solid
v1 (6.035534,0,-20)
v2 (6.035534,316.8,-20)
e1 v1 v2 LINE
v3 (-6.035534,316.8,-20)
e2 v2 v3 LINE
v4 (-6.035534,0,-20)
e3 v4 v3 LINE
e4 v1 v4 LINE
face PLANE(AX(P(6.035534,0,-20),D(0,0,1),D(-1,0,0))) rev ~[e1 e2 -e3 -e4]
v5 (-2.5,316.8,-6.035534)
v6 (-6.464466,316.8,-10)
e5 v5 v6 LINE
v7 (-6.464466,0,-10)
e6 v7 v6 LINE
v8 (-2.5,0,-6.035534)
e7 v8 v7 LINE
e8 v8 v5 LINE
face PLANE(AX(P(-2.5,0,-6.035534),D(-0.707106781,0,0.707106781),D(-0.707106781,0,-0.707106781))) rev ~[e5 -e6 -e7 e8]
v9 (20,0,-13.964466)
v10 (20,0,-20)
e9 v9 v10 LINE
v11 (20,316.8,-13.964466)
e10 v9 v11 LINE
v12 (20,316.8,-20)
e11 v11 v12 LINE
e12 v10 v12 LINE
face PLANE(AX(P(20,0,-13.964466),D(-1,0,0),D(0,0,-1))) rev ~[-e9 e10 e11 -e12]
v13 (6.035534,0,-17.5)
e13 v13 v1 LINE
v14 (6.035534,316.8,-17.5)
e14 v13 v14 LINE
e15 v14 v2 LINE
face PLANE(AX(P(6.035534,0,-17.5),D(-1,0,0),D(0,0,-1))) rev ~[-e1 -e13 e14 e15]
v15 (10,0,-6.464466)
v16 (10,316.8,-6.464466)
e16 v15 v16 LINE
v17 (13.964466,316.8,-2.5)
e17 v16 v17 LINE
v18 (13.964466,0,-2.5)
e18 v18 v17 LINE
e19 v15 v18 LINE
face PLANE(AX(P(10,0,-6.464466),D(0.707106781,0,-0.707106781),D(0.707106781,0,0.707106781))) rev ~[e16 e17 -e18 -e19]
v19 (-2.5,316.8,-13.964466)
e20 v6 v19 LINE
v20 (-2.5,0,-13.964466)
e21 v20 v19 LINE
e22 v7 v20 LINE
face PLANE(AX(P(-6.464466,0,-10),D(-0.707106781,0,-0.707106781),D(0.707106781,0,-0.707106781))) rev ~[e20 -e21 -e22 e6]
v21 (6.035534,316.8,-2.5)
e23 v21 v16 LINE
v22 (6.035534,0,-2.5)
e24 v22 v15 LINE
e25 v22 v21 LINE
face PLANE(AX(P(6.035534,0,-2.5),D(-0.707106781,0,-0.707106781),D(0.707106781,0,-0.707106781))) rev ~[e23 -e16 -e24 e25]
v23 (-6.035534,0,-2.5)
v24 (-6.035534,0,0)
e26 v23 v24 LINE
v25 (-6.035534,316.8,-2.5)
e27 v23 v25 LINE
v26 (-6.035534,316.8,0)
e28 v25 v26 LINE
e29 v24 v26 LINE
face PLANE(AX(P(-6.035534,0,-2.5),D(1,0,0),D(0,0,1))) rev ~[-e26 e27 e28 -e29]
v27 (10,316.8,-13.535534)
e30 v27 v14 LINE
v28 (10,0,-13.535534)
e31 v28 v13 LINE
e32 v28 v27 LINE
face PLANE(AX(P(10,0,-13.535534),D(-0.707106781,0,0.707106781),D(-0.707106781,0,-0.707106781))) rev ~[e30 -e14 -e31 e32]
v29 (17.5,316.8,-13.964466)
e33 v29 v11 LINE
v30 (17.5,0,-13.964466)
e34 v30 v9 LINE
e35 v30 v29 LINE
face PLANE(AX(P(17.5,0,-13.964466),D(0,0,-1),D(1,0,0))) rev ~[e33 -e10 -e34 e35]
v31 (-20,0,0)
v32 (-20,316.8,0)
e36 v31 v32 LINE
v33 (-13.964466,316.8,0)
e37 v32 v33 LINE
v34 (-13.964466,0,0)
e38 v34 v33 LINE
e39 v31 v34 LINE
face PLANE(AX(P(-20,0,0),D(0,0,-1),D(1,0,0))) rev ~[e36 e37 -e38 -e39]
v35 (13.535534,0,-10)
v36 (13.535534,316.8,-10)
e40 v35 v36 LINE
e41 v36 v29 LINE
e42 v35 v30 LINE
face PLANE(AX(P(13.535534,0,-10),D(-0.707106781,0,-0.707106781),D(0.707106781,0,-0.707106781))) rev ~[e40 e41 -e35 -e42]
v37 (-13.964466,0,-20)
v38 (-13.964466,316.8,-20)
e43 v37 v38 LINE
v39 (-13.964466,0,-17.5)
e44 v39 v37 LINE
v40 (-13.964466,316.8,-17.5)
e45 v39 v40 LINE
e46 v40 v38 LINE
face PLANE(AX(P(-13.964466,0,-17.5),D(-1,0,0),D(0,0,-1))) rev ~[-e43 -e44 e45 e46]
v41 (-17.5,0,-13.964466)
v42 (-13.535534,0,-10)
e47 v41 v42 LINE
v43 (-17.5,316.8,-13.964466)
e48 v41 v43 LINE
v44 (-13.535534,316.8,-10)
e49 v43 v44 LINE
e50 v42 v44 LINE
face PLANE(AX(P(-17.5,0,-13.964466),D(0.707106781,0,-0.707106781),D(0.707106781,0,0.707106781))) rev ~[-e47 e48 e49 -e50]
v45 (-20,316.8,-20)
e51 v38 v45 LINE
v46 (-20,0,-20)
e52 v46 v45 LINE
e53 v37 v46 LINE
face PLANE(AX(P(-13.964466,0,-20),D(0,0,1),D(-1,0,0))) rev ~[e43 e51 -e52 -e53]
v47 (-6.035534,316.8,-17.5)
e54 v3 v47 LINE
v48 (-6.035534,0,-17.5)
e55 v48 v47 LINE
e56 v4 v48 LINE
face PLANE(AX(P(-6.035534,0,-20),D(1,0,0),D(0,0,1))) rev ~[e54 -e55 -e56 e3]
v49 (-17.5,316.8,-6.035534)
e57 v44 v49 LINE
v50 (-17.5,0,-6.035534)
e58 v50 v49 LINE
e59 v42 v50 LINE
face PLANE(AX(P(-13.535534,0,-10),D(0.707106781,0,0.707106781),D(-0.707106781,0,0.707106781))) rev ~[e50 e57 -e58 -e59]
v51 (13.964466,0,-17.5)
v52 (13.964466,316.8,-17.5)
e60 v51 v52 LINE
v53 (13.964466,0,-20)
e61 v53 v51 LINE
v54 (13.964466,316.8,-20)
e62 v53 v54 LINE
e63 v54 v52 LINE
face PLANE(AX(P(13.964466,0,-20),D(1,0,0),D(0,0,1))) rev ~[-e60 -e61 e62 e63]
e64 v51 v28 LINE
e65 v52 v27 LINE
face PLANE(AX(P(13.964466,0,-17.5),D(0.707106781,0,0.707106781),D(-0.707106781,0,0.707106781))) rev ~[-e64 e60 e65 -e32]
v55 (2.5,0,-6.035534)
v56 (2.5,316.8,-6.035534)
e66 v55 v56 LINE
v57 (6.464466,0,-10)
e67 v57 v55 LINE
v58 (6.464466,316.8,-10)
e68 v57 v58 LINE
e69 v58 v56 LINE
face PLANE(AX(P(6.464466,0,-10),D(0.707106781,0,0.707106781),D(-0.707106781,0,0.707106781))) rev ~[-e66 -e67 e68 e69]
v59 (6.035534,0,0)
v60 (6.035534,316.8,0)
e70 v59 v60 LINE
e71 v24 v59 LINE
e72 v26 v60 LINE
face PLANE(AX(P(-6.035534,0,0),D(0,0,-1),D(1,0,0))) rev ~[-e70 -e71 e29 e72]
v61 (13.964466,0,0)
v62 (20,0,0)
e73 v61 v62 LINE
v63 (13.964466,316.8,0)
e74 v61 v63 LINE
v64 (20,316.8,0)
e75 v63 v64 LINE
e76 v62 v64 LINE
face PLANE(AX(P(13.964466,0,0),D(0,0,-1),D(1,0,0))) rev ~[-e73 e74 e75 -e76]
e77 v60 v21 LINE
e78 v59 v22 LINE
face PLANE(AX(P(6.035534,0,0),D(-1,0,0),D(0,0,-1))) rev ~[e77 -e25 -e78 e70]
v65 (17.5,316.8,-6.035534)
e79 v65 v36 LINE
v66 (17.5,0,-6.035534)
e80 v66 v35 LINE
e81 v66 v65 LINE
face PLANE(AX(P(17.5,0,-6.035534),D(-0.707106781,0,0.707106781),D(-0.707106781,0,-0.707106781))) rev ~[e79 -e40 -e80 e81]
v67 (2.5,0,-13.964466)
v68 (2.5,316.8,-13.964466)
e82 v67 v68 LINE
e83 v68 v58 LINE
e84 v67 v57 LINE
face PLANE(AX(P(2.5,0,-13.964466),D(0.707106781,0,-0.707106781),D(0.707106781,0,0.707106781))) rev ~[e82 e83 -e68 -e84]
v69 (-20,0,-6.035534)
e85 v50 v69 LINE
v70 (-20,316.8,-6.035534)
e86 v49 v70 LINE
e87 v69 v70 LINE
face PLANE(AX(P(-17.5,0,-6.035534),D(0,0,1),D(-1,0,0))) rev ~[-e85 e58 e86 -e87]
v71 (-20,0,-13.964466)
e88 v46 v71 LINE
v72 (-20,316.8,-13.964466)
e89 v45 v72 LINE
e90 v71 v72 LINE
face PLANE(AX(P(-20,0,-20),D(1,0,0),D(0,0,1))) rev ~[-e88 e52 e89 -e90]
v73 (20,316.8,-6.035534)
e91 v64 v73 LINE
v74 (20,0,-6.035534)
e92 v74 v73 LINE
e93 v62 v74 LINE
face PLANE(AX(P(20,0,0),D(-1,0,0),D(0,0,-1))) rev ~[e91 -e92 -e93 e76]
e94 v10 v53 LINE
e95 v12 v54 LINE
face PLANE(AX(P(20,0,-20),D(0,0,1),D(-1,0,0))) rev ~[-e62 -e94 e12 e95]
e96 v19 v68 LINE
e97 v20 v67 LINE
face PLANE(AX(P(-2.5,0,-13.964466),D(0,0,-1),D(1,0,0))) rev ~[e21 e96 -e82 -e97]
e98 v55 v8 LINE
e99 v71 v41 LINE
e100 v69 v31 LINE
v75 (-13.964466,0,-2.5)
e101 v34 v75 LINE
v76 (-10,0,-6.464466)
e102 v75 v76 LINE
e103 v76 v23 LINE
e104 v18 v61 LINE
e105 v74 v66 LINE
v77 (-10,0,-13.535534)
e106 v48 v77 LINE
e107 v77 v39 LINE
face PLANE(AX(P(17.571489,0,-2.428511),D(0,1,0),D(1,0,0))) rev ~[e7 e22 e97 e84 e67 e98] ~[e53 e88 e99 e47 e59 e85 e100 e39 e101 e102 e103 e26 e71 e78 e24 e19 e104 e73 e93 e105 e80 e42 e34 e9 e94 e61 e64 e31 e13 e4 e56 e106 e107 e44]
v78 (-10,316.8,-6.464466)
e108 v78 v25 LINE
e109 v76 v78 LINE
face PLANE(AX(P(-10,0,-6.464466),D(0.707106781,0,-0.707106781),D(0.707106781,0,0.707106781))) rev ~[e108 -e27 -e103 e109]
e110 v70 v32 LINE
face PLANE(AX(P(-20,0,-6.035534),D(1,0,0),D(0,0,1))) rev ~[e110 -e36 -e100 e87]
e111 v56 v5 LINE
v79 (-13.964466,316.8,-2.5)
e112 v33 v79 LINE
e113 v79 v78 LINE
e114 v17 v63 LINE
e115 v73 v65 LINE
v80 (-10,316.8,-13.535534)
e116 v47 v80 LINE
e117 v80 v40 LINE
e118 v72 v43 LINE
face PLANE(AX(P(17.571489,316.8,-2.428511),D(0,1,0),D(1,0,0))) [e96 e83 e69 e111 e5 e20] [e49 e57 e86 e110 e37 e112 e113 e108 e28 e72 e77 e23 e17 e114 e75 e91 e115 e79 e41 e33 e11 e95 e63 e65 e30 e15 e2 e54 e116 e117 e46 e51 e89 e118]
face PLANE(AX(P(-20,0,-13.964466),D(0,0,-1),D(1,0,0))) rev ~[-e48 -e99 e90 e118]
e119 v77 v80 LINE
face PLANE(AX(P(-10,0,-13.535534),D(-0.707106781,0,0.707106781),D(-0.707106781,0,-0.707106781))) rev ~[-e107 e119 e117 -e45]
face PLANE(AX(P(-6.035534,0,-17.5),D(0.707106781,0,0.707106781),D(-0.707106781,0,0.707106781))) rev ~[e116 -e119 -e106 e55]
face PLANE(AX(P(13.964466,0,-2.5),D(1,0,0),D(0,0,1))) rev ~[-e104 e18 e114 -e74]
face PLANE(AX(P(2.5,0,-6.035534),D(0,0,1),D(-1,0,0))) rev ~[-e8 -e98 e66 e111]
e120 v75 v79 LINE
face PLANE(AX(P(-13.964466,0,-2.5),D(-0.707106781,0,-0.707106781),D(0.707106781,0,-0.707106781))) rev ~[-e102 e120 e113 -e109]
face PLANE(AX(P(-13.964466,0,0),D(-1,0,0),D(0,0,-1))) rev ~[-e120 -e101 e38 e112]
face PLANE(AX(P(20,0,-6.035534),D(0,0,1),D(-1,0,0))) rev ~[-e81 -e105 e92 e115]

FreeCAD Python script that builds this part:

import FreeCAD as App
import Part
import Sketcher

V = App.Vector
Q = App.Units.Quantity

doc = App.newDocument("Part")
body = doc.addObject("PartDesign::Body", "Body")

# Sketch on XZ plane
sketch1 = doc.addObject("Sketcher::SketchObject", "Sketch")
body.addObject(sketch1)
sketch1.AttachmentSupport = (doc.XZ_Plane, [""])
sketch1.MapMode = "FlatFace"
sketch1.addGeometry([
    Part.LineSegment(V(13.964466, -2.5, 0), V(13.964466, 0, 0)),  # 0
    Part.LineSegment(V(13.964466, 0, 0), V(20, 0, 0)),  # 1
    Part.LineSegment(V(20, 0, 0), V(20, -6.035534, 0)),  # 2
    Part.LineSegment(V(20, -6.035534, 0), V(17.5, -6.035534, 0)),  # 3
    Part.LineSegment(V(17.5, -6.035534, 0), V(13.535534, -10, 0)),  # 4
    Part.LineSegment(V(13.535534, -10, 0), V(17.5, -13.964466, 0)),  # 5
    Part.LineSegment(V(17.5, -13.964466, 0), V(20, -13.964466, 0)),  # 6
    Part.LineSegment(V(20, -13.964466, 0), V(20, -20, 0)),  # 7
    Part.LineSegment(V(20, -20, 0), V(13.964466, -20, 0)),  # 8
    Part.LineSegment(V(13.964466, -20, 0), V(13.964466, -17.5, 0)),  # 9
    Part.LineSegment(V(13.964466, -17.5, 0), V(10, -13.535534, 0)),  # 10
    Part.LineSegment(V(10, -13.535534, 0), V(6.035534, -17.5, 0)),  # 11
    Part.LineSegment(V(6.035534, -17.5, 0), V(6.035534, -20, 0)),  # 12
    Part.LineSegment(V(6.035534, -20, 0), V(-6.035534, -20, 0)),  # 13
    Part.LineSegment(V(-6.035534, -20, 0), V(-6.035534, -17.5, 0)),  # 14
    Part.LineSegment(V(-6.035534, -17.5, 0), V(-10, -13.535534, 0)),  # 15
    Part.LineSegment(V(-10, -13.535534, 0), V(-13.964466, -17.5, 0)),  # 16
    Part.LineSegment(V(-13.964466, -17.5, 0), V(-13.964466, -20, 0)),  # 17
    Part.LineSegment(V(-13.964466, -20, 0), V(-20, -20, 0)),  # 18
    Part.LineSegment(V(-20, -20, 0), V(-20, -13.964466, 0)),  # 19
    Part.LineSegment(V(-20, -13.964466, 0), V(-17.5, -13.964466, 0)),  # 20
    Part.LineSegment(V(-17.5, -13.964466, 0), V(-13.535534, -10, 0)),  # 21
    Part.LineSegment(V(-13.535534, -10, 0), V(-17.5, -6.035534, 0)),  # 22
    Part.LineSegment(V(-17.5, -6.035534, 0), V(-20, -6.035534, 0)),  # 23
    Part.LineSegment(V(-20, -6.035534, 0), V(-20, 0, 0)),  # 24
    Part.LineSegment(V(-20, 0, 0), V(-13.964466, 0, 0)),  # 25
    Part.LineSegment(V(-13.964466, 0, 0), V(-13.964466, -2.5, 0)),  # 26
    Part.LineSegment(V(-13.964466, -2.5, 0), V(-10, -6.464466, 0)),  # 27
    Part.LineSegment(V(-10, -6.464466, 0), V(-6.035534, -2.5, 0)),  # 28
    Part.LineSegment(V(-6.035534, -2.5, 0), V(-6.035534, 0, 0)),  # 29
    Part.LineSegment(V(-6.035534, 0, 0), V(6.035534, 0, 0)),  # 30
    Part.LineSegment(V(6.035534, 0, 0), V(6.035534, -2.5, 0)),  # 31
    Part.LineSegment(V(6.035534, -2.5, 0), V(10, -6.464466, 0)),  # 32
    Part.LineSegment(V(10, -6.464466, 0), V(13.964466, -2.5, 0)),  # 33
    Part.LineSegment(V(6.464466, -10, 0), V(2.5, -6.035534, 0)),  # 34
    Part.LineSegment(V(2.5, -6.035534, 0), V(-2.5, -6.035534, 0)),  # 35
    Part.LineSegment(V(-2.5, -6.035534, 0), V(-6.464466, -10, 0)),  # 36
    Part.LineSegment(V(-6.464466, -10, 0), V(-2.5, -13.964466, 0)),  # 37
    Part.LineSegment(V(-2.5, -13.964466, 0), V(2.5, -13.964466, 0)),  # 38
    Part.LineSegment(V(2.5, -13.964466, 0), V(6.464466, -10, 0)),  # 39
], False)
sketch1.addConstraint([
    Sketcher.Constraint("Coincident", 0, 2, 1, 1),
    Sketcher.Constraint("Coincident", 1, 2, 2, 1),
    Sketcher.Constraint("Coincident", 2, 2, 3, 1),
    Sketcher.Constraint("Coincident", 3, 2, 4, 1),
    Sketcher.Constraint("Coincident", 4, 2, 5, 1),
    Sketcher.Constraint("Coincident", 5, 2, 6, 1),
    Sketcher.Constraint("Coincident", 6, 2, 7, 1),
    Sketcher.Constraint("Coincident", 7, 2, 8, 1),
    Sketcher.Constraint("Coincident", 8, 2, 9, 1),
    Sketcher.Constraint("Coincident", 9, 2, 10, 1),
    Sketcher.Constraint("Coincident", 10, 2, 11, 1),
    Sketcher.Constraint("Coincident", 11, 2, 12, 1),
    Sketcher.Constraint("Coincident", 12, 2, 13, 1),
    Sketcher.Constraint("Coincident", 13, 2, 14, 1),
    Sketcher.Constraint("Coincident", 14, 2, 15, 1),
    Sketcher.Constraint("Coincident", 15, 2, 16, 1),
    Sketcher.Constraint("Coincident", 16, 2, 17, 1),
    Sketcher.Constraint("Coincident", 17, 2, 18, 1),
    Sketcher.Constraint("Coincident", 18, 2, 19, 1),
    Sketcher.Constraint("Coincident", 19, 2, 20, 1),
    Sketcher.Constraint("Coincident", 20, 2, 21, 1),
    Sketcher.Constraint("Coincident", 21, 2, 22, 1),
    Sketcher.Constraint("Coincident", 22, 2, 23, 1),
    Sketcher.Constraint("Coincident", 23, 2, 24, 1),
    Sketcher.Constraint("Coincident", 24, 2, 25, 1),
    Sketcher.Constraint("Coincident", 25, 2, 26, 1),
    Sketcher.Constraint("Coincident", 26, 2, 27, 1),
    Sketcher.Constraint("Coincident", 27, 2, 28, 1),
    Sketcher.Constraint("Coincident", 28, 2, 29, 1),
    Sketcher.Constraint("Coincident", 29, 2, 30, 1),
    Sketcher.Constraint("Coincident", 30, 2, 31, 1),
    Sketcher.Constraint("Coincident", 31, 2, 32, 1),
    Sketcher.Constraint("Coincident", 32, 2, 33, 1),
    Sketcher.Constraint("Coincident", 33, 2, 0, 1),
    Sketcher.Constraint("Coincident", 34, 2, 35, 1),
    Sketcher.Constraint("Coincident", 35, 2, 36, 1),
    Sketcher.Constraint("Coincident", 36, 2, 37, 1),
    Sketcher.Constraint("Coincident", 37, 2, 38, 1),
    Sketcher.Constraint("Coincident", 38, 2, 39, 1),
    Sketcher.Constraint("Coincident", 39, 2, 34, 1),
    Sketcher.Constraint("Vertical", 0),
    Sketcher.Constraint("Horizontal", 1),
    Sketcher.Constraint("Vertical", 2),
    Sketcher.Constraint("Horizontal", 3),
    Sketcher.Constraint("Horizontal", 6),
    Sketcher.Constraint("Vertical", 7),
    Sketcher.Constraint("Horizontal", 8),
    Sketcher.Constraint("Vertical", 9),
    Sketcher.Constraint("Vertical", 12),
    Sketcher.Constraint("Horizontal", 13),
    Sketcher.Constraint("Vertical", 14),
    Sketcher.Constraint("Vertical", 17),
    Sketcher.Constraint("Horizontal", 18),
    Sketcher.Constraint("Vertical", 19),
    Sketcher.Constraint("Horizontal", 20),
    Sketcher.Constraint("Horizontal", 23),
    Sketcher.Constraint("Vertical", 24),
    Sketcher.Constraint("Horizontal", 25),
    Sketcher.Constraint("Vertical", 26),
    Sketcher.Constraint("Vertical", 29),
    Sketcher.Constraint("Horizontal", 30),
    Sketcher.Constraint("Vertical", 31),
    Sketcher.Constraint("Horizontal", 35),
    Sketcher.Constraint("Horizontal", 38),
    Sketcher.Constraint("Symmetric", 1, 2, 24, 2, -1, 1),
    Sketcher.Constraint("Symmetric", 29, 2, 30, 2, -1, 1),
    Sketcher.Constraint("Symmetric", 11, 2, 14, 2, -2),
    Sketcher.Constraint("Symmetric", 10, 2, 15, 2, -2),
    Sketcher.Constraint("Symmetric", 9, 2, 16, 2, -2),
    Sketcher.Constraint("Symmetric", 7, 2, 18, 2, -2),
    Sketcher.Constraint("Symmetric", 5, 2, 20, 2, -2),
    Sketcher.Constraint("Symmetric", 4, 2, 21, 2, -2),
    Sketcher.Constraint("Symmetric", 3, 2, 22, 2, -2),
    Sketcher.Constraint("Symmetric", 0, 2, 25, 2, -2),
    Sketcher.Constraint("Symmetric", 27, 2, 32, 2, -2),
    Sketcher.Constraint("Symmetric", 36, 2, 39, 2, -2),
    Sketcher.Constraint("Perpendicular", 4, 5),
    Sketcher.Constraint("Parallel", 5, 10),
    Sketcher.Constraint("Perpendicular", 10, 11),
    Sketcher.Constraint("Perpendicular", 11, 15),
    Sketcher.Constraint("Parallel", 22, 27),
    Sketcher.Constraint("Perpendicular", 27, 28),
    Sketcher.Constraint("Perpendicular", 28, 32),
    Sketcher.Constraint("Perpendicular", 32, 33),
    Sketcher.Constraint("Perpendicular", 33, 34),
    Sketcher.Constraint("Perpendicular", 34, 36),
    Sketcher.Constraint("Perpendicular", 36, 37),
    Sketcher.Constraint("Perpendicular", 37, 39),
    Sketcher.Constraint("Horizontal", 9, 2, 11, 2),
    Sketcher.Constraint("Horizontal", 8, 2, 12, 2),
    Sketcher.Constraint("Horizontal", 26, 2, 28, 2),
    Sketcher.Constraint("Horizontal", 23, 2, 34, 2),
    Sketcher.Constraint("Horizontal", 21, 2, 36, 2),
    Sketcher.Constraint("Horizontal", 20, 2, 37, 2),
    Sketcher.Constraint("Vertical", 3, 2, 5, 2),
    Sketcher.Constraint("Vertical", 2, 2, 6, 2),
    Sketcher.Constraint("Vertical", 0, 2, 8, 2),
    Sketcher.Constraint("Vertical", 15, 2, 27, 2),
    Sketcher.Constraint("Equal", 23, 0),
    Sketcher.Constraint("Equal", 25, 2),
    Sketcher.Constraint("Equal", 2, 7),
    Sketcher.Constraint("Equal", 0, 9),
    Sketcher.Constraint("Equal", 5, 10),
    Sketcher.Constraint("DistanceX", 35, 2, 35, 1, Q("5 mm")),
    Sketcher.Constraint("DistanceX", 3, 2, 3, 1, Q("2.5 mm")),
    Sketcher.Constraint("DistanceX", -1, 1, 1, 2, Q("20 mm")),
    Sketcher.Constraint("DistanceY", 4, 2, -1, 1, Q("10 mm")),
    Sketcher.Constraint("Distance", 4, Q("5.606602 mm")),
])
pad1 = doc.addObject("PartDesign::Pad", "Pad")
body.addObject(pad1)
pad1.Profile = sketch1
pad1.Length = 316.8
pad1.Reversed = True

doc.recompute()
